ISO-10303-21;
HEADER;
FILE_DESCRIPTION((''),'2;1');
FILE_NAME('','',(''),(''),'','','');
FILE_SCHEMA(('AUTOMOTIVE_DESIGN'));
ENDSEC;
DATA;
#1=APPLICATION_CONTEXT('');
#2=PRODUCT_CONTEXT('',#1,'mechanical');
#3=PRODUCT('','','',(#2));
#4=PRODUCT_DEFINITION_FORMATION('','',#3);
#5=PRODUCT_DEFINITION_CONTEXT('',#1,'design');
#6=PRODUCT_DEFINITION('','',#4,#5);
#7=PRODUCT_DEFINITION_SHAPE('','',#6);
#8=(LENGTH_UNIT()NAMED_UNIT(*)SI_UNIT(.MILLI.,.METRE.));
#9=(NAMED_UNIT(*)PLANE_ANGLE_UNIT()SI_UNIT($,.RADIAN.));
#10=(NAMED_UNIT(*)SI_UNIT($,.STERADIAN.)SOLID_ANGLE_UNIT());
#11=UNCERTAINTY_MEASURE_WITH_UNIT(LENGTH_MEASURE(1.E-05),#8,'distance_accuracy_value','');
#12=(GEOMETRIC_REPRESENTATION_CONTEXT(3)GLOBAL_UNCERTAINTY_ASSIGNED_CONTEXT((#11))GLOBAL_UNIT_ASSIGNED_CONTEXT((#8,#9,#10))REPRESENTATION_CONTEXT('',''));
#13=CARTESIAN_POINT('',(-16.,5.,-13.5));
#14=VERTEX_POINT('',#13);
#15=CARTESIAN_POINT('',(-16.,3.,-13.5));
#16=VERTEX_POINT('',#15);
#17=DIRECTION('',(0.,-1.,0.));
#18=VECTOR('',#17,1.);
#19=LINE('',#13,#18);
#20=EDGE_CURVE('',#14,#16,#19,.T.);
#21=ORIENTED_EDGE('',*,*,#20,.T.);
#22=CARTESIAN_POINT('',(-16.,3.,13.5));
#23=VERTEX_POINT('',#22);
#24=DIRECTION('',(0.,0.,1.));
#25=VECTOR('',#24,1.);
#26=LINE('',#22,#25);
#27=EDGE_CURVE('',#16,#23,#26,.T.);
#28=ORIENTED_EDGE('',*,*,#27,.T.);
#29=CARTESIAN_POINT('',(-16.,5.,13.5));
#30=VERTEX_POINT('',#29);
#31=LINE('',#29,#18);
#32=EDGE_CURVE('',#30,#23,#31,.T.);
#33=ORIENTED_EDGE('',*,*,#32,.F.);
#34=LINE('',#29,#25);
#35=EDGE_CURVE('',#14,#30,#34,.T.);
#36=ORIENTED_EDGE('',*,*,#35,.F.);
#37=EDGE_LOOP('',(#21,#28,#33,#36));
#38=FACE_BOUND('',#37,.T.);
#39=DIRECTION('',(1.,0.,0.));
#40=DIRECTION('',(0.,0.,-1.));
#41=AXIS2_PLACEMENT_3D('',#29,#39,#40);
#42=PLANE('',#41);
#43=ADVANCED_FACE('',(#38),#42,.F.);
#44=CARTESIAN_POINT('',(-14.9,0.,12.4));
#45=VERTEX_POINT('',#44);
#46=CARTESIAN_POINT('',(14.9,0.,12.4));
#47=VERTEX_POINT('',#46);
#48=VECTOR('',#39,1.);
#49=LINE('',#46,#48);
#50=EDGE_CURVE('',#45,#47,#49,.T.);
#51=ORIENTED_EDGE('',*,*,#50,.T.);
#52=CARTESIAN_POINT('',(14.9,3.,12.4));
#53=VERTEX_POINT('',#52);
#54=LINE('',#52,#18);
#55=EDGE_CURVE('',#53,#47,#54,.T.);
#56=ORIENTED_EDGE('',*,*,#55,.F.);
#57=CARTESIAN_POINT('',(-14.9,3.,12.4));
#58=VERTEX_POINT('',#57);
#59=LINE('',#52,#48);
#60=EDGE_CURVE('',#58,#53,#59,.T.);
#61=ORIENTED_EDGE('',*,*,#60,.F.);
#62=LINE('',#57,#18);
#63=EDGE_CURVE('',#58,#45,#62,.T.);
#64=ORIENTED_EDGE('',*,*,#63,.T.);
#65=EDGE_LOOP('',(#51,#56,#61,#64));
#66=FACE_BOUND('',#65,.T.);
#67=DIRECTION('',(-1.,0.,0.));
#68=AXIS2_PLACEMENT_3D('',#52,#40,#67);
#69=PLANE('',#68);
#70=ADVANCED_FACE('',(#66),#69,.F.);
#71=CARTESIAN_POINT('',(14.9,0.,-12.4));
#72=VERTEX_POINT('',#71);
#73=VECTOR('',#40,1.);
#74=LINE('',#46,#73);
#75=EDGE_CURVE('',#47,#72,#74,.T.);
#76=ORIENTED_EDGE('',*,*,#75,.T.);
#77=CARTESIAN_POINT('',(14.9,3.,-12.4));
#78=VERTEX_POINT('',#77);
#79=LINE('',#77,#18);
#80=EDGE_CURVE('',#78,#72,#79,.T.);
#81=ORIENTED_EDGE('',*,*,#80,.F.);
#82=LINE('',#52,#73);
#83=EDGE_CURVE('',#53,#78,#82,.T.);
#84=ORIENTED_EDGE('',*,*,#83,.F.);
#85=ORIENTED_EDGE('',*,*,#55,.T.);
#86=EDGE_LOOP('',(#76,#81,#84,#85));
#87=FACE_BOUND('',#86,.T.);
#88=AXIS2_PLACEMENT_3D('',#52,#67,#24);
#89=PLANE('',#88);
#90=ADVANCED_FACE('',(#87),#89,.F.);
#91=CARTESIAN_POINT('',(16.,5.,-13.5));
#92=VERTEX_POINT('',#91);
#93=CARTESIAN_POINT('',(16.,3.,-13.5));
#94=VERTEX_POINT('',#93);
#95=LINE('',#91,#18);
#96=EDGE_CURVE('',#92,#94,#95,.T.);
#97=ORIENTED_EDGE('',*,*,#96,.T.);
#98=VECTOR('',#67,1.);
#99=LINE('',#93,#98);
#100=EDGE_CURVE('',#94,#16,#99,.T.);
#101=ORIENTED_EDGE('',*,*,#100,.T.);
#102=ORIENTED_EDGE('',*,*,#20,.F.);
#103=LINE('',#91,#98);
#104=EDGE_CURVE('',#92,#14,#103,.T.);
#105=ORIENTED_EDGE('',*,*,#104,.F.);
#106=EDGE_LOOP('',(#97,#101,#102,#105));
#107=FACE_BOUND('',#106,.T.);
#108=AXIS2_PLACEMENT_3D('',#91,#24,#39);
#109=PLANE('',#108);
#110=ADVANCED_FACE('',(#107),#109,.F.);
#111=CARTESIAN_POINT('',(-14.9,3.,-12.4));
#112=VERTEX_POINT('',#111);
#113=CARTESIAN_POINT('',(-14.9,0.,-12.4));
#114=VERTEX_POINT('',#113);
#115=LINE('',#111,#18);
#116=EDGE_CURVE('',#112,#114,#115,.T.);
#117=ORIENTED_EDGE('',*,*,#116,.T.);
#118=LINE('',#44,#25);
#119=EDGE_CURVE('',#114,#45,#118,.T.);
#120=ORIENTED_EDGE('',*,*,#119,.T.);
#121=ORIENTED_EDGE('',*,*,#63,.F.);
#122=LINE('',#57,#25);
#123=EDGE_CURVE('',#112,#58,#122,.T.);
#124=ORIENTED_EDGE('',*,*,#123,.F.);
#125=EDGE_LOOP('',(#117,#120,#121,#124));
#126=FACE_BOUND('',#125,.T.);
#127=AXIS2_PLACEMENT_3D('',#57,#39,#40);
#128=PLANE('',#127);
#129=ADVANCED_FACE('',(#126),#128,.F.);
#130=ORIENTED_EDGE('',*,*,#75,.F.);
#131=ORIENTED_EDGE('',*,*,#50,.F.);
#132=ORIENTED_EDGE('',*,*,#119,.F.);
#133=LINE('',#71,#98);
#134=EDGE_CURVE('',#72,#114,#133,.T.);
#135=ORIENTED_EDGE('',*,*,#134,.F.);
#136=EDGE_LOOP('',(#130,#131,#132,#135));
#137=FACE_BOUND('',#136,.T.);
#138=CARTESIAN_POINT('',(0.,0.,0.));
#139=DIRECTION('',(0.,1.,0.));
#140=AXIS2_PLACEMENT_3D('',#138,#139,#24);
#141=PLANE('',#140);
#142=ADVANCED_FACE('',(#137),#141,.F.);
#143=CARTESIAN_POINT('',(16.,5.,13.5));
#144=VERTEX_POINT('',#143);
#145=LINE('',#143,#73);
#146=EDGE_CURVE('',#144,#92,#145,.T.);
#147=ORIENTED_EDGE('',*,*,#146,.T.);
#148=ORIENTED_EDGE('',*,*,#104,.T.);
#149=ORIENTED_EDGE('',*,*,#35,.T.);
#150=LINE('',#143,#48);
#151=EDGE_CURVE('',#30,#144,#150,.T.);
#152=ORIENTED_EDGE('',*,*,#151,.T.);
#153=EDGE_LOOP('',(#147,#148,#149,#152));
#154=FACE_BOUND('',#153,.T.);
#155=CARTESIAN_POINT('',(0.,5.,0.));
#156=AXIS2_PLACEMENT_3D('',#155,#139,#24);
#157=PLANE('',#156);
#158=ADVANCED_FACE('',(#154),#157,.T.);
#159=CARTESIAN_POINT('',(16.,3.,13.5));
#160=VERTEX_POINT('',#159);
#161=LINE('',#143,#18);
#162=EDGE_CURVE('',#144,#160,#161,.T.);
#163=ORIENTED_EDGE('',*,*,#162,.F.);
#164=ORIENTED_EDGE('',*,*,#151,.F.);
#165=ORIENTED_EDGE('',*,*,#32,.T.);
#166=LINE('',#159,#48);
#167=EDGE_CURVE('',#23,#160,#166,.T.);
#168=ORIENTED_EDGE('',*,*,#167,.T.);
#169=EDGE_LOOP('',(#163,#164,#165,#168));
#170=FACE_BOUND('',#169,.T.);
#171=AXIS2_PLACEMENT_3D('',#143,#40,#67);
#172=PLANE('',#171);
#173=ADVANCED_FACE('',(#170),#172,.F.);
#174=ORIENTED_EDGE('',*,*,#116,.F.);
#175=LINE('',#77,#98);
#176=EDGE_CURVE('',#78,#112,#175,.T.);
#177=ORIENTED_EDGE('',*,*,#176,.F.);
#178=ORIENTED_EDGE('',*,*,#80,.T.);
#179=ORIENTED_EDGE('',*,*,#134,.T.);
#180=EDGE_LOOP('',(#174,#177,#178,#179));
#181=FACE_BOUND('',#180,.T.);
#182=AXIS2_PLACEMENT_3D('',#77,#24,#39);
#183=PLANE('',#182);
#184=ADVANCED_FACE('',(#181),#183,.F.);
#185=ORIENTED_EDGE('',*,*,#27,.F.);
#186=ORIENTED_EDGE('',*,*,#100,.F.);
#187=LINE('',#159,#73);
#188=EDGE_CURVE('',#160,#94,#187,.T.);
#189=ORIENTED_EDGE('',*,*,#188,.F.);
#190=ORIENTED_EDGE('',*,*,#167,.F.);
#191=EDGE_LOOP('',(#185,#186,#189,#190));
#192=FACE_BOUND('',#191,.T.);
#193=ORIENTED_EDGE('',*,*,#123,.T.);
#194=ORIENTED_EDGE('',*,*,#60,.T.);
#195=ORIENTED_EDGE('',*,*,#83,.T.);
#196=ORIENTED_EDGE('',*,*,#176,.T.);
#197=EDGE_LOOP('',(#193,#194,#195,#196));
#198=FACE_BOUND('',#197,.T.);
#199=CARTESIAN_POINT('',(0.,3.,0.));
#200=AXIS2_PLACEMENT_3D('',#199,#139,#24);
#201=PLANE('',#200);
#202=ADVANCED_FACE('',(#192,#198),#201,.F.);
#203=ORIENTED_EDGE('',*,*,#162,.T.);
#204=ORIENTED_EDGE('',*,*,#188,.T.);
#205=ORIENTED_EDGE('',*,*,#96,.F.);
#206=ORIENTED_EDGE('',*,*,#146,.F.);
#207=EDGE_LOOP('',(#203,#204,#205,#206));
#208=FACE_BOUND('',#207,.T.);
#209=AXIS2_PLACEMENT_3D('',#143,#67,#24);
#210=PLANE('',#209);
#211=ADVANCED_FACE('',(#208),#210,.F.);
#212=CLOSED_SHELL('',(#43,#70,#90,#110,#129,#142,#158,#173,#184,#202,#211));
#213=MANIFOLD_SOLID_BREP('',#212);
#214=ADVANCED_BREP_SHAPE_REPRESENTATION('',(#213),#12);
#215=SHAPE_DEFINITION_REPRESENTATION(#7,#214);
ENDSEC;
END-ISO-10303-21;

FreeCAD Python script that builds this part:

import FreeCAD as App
import Part
import Sketcher

V = App.Vector

doc = App.newDocument("Part")
body = doc.addObject("PartDesign::Body", "Body")

sketch1 = body.newObject("Sketcher::SketchObject", "Sketch")
sketch1.AttachmentSupport = (doc.getObject("XZ_Plane"), [""])
sketch1.MapMode = "FlatFace"
sketch1.addGeometry([
    Part.LineSegment(V(-15, -12, 0), V(-15, 12, 0)),
    Part.LineSegment(V(-15, 12, 0), V(15, 12, 0)),
    Part.LineSegment(V(15, 12, 0), V(15, -12, 0)),
    Part.LineSegment(V(15, -12, 0), V(-15, -12, 0)),
], False)
sketch1.addConstraint([
    Sketcher.Constraint("Coincident", 0, 2, 1, 1),
    Sketcher.Constraint("Coincident", 1, 2, 2, 1),
    Sketcher.Constraint("Coincident", 2, 2, 3, 1),
    Sketcher.Constraint("Coincident", 3, 2, 0, 1),
    Sketcher.Constraint("Vertical", 0),
    Sketcher.Constraint("Horizontal", 1),
    Sketcher.Constraint("Vertical", 2),
    Sketcher.Constraint("Horizontal", 3),
    Sketcher.Constraint("Symmetric", 0, 2, 2, 2, -1, 1),
    Sketcher.Constraint("DistanceX", 1, 1, 1, 2, 29.8),
    Sketcher.Constraint("DistanceY", 0, 1, 0, 2, 24.8),
])
pad1 = body.newObject("PartDesign::Pad", "Pad")
pad1.Profile = sketch1
pad1.Length = 3
pad1.Reversed = True

sketch2 = body.newObject("Sketcher::SketchObject", "Sketch001")
sketch2.AttachmentSupport = (doc.getObject("XZ_Plane"), [""])
sketch2.MapMode = "FlatFace"
sketch2.AttachmentOffset = App.Placement(V(0, 0, -3), App.Rotation())
sketch2.addGeometry([
    Part.LineSegment(V(-16, -14, 0), V(-16, 14, 0)),
    Part.LineSegment(V(-16, 14, 0), V(16, 14, 0)),
    Part.LineSegment(V(16, 14, 0), V(16, -14, 0)),
    Part.LineSegment(V(16, -14, 0), V(-16, -14, 0)),
], False)
sketch2.addConstraint([
    Sketcher.Constraint("Coincident", 0, 2, 1, 1),
    Sketcher.Constraint("Coincident", 1, 2, 2, 1),
    Sketcher.Constraint("Coincident", 2, 2, 3, 1),
    Sketcher.Constraint("Coincident", 3, 2, 0, 1),
    Sketcher.Constraint("Vertical", 0),
    Sketcher.Constraint("Horizontal", 1),
    Sketcher.Constraint("Vertical", 2),
    Sketcher.Constraint("Horizontal", 3),
    Sketcher.Constraint("Symmetric", 0, 2, 2, 2, -1, 1),
    Sketcher.Constraint("DistanceX", 1, 1, 1, 2, 32.0),
    Sketcher.Constraint("DistanceY", 0, 1, 0, 2, 27.0),
])
pad2 = body.newObject("PartDesign::Pad", "Pad001")
pad2.Profile = sketch2
pad2.Length = 2
pad2.Reversed = True

doc.recompute()
